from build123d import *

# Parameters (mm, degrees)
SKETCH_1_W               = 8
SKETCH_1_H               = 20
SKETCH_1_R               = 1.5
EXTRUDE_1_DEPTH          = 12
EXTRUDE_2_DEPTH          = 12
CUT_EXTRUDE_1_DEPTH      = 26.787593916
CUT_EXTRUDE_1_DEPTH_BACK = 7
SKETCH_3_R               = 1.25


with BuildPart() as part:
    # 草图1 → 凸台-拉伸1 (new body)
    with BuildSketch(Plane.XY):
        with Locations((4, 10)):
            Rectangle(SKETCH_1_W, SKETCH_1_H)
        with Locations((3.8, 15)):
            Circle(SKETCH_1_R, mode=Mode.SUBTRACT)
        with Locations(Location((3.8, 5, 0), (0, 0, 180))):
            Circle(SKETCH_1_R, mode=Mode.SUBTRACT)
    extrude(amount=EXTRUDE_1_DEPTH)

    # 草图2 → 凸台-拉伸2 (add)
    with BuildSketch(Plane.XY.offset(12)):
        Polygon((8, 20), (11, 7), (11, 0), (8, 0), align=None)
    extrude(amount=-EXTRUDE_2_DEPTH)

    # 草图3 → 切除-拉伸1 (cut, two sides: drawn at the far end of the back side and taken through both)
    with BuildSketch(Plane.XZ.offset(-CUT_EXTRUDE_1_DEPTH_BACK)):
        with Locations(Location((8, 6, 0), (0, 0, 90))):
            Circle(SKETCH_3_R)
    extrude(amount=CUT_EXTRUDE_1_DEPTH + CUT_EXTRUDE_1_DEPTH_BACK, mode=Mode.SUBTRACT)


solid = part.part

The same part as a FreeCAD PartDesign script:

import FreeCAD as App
import Part
import Sketcher
Q = App.Units.Quantity


def add_polygon(sketch, points):
    """Adds a closed chain of lines whose ends are joined by coincident constraints."""
    first, n = sketch.GeometryCount, len(points)
    for a, b in zip(points, points[1:] + points[:1]):
        sketch.addGeometry(Part.LineSegment(App.Vector(*a, 0), App.Vector(*b, 0)), False)
    for i in range(n):
        sketch.addConstraint(Sketcher.Constraint("Coincident", first + i, 2, first + (i + 1) % n, 1))

doc = App.newDocument("Part")
body = doc.addObject("PartDesign::Body", "Body")

sketch1 = body.newObject("Sketcher::SketchObject", "Sketch")
sketch1.AttachmentSupport = (doc.getObject("XY_Plane"), [""])
sketch1.MapMode = "FlatFace"
add_polygon(sketch1, [(0, 20), (0, 0), (8, 0), (8, 20)])
sketch1.addGeometry(Part.Circle(App.Vector(3.8, 5, 0), App.Vector(0, 0, 1), 1.5), False)
sketch1.addGeometry(Part.Circle(App.Vector(3.8, 15, 0), App.Vector(0, 0, 1), 1.5), False)
sketch1.addConstraint([
    Sketcher.Constraint("Vertical", 0),
    Sketcher.Constraint("Horizontal", 1),
    Sketcher.Constraint("Vertical", 2),
    Sketcher.Constraint("Horizontal", 3),
    Sketcher.Constraint("Coincident", 0, 2, -1, 1),
    Sketcher.Constraint("Equal", 4, 5),
    Sketcher.Constraint("Vertical", 4, 3, 5, 3),
    Sketcher.Constraint("Diameter", 4, Q("3 mm")),
    Sketcher.Constraint("DistanceX", 1, 1, 1, 2, Q("8 mm")),
    Sketcher.Constraint("DistanceY", 0, 2, 0, 1, Q("20 mm")),
    Sketcher.Constraint("DistanceY", -1, 1, 4, 3, Q("5 mm")),
    Sketcher.Constraint("DistanceY", -1, 1, 5, 3, Q("15 mm")),
    Sketcher.Constraint("DistanceX", -1, 1, 4, 3, Q("3.8 mm")),
])
pad1 = body.newObject("PartDesign::Pad", "Pad")
pad1.Profile = sketch1
pad1.Length = 12

sketch2 = body.newObject("Sketcher::SketchObject", "Sketch001")
sketch2.AttachmentSupport = (doc.getObject("XY_Plane"), [""])
sketch2.MapMode = "FlatFace"
sketch2.AttachmentOffset = App.Placement(App.Vector(0, 0, 12), App.Rotation())
add_polygon(sketch2, [(11, 7), (8, 20), (8, 0), (11, 0)])
sketch2.addConstraint([
    Sketcher.Constraint("Vertical", 1),
    Sketcher.Constraint("Horizontal", 2),
    Sketcher.Constraint("Vertical", 3),
    Sketcher.Constraint("PointOnObject", 1, 2, -1),
    Sketcher.Constraint("DistanceX", 2, 1, 2, 2, Q("3 mm")),
    Sketcher.Constraint("DistanceY", 1, 2, 1, 1, Q("20 mm")),
    Sketcher.Constraint("DistanceY", 3, 1, 3, 2, Q("7 mm")),
    Sketcher.Constraint("DistanceX", -1, 1, 0, 2, Q("8 mm")),
])
pad2 = body.newObject("PartDesign::Pad", "Pad001")
pad2.Profile = sketch2
pad2.Length = 12
pad2.Reversed = True

sketch3 = body.newObject("Sketcher::SketchObject", "Sketch002")
sketch3.AttachmentSupport = (doc.getObject("XZ_Plane"), [""])
sketch3.MapMode = "FlatFace"
sketch3.addGeometry(Part.Circle(App.Vector(8, 6, 0), App.Vector(0, 0, 1), 1.2), False)
sketch3.addConstraint([
    Sketcher.Constraint("Diameter", 0, Q("2.5 mm")),
    Sketcher.Constraint("DistanceX", -1, 1, 0, 3, Q("8 mm")),
    Sketcher.Constraint("DistanceY", -1, 1, 0, 3, Q("6 mm")),
])
pocket1 = body.newObject("PartDesign::Pocket", "Pocket")
pocket1.Profile = sketch3
pocket1.Type = "TwoLengths"
pocket1.Length = 26.787594
pocket1.Length2 = 7
pocket1.Reversed = True

doc.recompute()
